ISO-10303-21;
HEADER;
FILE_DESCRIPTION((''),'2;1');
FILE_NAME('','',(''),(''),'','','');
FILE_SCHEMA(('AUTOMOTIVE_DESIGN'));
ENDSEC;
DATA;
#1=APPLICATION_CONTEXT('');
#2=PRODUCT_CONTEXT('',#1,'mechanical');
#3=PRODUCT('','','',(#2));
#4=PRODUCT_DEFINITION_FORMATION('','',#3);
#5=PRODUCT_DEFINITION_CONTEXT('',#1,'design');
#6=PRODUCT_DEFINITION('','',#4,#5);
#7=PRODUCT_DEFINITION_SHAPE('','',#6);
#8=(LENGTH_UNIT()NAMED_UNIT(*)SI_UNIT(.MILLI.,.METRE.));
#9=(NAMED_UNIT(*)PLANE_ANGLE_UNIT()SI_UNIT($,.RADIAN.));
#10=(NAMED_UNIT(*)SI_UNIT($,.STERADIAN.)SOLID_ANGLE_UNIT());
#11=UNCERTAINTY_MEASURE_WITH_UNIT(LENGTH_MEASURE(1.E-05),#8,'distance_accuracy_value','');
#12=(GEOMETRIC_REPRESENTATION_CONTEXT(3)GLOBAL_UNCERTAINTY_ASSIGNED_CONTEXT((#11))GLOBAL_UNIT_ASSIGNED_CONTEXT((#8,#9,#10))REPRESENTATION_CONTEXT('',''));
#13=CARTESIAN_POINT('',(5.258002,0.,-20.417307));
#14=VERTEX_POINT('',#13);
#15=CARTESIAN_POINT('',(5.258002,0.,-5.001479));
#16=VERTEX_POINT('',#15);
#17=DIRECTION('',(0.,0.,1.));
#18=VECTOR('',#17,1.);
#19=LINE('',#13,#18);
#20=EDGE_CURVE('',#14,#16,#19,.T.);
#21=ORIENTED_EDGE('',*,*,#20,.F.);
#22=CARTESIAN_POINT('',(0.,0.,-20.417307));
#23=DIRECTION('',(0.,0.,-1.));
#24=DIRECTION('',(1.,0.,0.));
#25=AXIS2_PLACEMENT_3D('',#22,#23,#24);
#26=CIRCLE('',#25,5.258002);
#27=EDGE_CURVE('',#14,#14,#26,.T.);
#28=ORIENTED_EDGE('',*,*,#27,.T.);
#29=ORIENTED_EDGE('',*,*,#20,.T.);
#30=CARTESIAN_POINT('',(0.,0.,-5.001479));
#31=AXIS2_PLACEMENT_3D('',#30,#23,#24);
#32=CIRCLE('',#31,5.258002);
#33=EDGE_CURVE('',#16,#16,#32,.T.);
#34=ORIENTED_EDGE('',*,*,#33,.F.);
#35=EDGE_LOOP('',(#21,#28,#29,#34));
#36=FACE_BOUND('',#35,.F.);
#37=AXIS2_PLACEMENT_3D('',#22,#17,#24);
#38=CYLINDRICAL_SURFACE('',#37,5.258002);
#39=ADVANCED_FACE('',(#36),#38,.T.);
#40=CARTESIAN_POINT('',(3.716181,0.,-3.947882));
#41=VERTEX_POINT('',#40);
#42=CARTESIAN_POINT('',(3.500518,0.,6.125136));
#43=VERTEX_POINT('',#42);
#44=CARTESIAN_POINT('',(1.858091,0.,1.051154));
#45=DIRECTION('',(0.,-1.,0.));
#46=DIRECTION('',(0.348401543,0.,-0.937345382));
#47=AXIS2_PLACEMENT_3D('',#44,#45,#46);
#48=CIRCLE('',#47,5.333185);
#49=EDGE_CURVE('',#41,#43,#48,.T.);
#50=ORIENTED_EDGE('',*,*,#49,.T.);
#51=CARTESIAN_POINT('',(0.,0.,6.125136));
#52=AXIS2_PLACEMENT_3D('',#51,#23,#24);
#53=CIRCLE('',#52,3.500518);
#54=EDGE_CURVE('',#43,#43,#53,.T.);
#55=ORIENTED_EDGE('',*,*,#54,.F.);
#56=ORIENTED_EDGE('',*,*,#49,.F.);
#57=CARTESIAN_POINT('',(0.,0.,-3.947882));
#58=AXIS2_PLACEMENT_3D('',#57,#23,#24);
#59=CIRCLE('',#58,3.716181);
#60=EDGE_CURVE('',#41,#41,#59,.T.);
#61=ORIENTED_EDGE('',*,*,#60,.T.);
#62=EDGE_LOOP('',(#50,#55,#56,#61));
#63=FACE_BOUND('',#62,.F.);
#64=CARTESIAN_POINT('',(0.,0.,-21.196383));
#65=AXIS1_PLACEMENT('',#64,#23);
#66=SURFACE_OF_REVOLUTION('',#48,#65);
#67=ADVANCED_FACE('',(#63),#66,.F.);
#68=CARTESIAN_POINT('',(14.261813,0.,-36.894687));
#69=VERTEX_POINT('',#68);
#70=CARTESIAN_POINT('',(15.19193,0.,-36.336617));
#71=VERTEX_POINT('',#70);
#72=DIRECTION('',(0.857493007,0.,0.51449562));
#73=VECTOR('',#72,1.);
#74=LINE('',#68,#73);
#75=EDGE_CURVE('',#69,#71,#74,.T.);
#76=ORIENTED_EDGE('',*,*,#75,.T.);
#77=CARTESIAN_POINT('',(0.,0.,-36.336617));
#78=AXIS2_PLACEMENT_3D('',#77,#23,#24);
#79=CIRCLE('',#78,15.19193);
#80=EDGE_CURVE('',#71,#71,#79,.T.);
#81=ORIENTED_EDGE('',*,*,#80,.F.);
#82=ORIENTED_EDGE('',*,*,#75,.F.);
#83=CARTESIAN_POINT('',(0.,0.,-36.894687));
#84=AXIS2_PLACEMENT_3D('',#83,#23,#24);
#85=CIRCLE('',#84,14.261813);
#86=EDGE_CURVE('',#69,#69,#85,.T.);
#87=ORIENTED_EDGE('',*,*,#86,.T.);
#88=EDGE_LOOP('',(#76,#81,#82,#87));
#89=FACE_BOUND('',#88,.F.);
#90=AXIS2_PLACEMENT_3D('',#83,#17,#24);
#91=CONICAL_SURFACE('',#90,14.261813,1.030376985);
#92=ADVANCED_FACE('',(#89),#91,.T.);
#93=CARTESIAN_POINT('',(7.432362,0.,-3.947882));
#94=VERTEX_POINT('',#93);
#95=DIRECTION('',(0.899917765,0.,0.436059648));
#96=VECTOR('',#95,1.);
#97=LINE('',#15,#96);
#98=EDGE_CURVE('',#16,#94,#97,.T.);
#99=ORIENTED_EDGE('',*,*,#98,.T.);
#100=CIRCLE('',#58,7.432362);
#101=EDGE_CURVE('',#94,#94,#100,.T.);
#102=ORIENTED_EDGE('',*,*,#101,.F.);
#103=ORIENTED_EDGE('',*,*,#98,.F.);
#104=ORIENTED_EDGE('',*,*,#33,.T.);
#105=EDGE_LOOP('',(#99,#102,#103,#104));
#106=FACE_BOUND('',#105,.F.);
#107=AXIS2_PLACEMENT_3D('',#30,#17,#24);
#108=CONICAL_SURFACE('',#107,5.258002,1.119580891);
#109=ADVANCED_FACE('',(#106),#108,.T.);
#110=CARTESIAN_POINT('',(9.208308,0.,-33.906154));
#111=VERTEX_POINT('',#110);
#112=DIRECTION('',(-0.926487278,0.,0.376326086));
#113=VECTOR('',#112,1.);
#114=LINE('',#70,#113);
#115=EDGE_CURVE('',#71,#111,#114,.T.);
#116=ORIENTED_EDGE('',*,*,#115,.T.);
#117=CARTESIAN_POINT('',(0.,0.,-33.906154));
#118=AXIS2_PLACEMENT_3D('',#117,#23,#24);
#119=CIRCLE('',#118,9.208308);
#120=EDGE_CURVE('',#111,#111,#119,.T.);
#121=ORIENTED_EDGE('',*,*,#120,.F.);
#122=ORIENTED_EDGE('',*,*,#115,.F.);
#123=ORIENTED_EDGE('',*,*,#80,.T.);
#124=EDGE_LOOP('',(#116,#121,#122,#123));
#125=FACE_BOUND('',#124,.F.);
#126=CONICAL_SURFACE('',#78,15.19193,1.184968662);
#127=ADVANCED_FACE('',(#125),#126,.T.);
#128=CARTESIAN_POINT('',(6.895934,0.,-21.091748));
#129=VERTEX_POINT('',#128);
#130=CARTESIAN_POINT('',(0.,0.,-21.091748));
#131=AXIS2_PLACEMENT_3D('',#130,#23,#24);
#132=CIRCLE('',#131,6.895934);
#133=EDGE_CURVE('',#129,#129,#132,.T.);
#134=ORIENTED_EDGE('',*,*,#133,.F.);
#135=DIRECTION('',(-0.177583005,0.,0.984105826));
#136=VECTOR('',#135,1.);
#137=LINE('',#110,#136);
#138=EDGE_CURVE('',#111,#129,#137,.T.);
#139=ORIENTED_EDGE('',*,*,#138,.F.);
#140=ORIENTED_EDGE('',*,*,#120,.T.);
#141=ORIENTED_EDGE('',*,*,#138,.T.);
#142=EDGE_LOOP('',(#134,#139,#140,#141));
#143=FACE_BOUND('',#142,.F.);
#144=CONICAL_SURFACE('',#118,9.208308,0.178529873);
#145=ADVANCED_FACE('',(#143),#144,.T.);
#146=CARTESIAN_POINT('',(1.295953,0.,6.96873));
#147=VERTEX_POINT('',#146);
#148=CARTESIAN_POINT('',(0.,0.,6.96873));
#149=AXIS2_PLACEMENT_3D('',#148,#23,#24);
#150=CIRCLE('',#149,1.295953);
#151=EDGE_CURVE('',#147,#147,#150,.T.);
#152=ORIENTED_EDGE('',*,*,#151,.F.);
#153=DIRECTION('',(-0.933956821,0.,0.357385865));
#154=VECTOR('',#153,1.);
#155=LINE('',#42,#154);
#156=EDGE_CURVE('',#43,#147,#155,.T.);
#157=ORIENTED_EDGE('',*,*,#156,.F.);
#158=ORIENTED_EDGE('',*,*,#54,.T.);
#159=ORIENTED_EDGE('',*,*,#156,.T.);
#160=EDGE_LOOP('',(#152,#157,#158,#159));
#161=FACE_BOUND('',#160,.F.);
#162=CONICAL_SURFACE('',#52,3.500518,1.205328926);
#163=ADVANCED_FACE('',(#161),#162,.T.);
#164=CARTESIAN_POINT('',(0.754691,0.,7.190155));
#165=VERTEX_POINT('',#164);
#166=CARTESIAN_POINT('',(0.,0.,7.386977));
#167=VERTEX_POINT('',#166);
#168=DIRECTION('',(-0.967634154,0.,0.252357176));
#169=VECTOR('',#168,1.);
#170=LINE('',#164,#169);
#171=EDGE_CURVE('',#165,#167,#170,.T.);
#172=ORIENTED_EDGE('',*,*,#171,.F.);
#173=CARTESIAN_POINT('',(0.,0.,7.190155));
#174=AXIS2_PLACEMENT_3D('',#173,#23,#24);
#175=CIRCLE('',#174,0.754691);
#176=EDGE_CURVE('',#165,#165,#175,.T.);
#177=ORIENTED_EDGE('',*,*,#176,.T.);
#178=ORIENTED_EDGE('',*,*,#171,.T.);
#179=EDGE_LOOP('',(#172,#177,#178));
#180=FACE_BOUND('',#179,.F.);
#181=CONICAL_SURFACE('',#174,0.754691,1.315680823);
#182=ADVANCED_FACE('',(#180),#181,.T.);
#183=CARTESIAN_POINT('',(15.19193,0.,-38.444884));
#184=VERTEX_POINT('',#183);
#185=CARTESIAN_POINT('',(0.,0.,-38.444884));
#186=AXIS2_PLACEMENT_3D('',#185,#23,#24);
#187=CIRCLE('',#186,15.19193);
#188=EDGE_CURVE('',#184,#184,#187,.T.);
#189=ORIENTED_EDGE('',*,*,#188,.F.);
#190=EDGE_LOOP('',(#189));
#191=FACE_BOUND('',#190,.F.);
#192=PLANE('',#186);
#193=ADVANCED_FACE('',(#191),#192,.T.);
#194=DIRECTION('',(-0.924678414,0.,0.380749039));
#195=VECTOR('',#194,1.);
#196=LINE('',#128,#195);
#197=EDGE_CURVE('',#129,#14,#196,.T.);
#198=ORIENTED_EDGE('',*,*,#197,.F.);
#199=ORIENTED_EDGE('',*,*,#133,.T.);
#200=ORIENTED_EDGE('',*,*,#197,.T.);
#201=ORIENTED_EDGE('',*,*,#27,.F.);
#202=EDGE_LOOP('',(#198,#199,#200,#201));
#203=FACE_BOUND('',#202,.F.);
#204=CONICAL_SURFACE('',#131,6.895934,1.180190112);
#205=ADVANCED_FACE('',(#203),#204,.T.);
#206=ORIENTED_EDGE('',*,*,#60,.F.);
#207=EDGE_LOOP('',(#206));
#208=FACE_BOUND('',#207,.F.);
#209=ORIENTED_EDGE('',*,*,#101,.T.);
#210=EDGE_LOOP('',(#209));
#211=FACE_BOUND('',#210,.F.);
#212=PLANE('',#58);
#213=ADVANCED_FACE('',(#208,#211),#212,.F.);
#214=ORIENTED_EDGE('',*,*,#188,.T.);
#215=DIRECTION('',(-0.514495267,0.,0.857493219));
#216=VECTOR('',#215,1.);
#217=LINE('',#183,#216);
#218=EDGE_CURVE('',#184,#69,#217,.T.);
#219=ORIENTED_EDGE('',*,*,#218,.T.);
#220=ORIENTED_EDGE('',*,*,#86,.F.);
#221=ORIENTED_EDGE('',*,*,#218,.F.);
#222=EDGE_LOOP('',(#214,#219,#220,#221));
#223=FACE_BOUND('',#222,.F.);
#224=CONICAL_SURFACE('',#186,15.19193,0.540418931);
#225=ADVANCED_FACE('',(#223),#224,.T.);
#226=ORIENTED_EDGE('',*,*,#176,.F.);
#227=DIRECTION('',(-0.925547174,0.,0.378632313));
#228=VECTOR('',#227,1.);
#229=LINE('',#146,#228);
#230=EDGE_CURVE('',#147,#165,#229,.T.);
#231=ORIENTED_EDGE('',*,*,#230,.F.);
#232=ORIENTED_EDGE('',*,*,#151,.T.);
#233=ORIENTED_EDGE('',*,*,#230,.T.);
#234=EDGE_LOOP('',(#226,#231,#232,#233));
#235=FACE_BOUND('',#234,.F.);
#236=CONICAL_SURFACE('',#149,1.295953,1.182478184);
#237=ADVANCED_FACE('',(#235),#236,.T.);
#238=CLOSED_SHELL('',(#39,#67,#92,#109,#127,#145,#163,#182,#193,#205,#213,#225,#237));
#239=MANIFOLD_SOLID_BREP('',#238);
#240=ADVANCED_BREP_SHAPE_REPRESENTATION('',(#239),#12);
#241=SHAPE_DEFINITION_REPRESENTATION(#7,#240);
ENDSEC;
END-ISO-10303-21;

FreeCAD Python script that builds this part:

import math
import FreeCAD as App
import Part
import Sketcher

doc = App.newDocument("Part")
body = doc.addObject("PartDesign::Body", "Body")

# Sketch on XZ plane
sketch1 = body.newObject("Sketcher::SketchObject", "Sketch")
sketch1.AttachmentSupport = (doc.getObject("XZ_Plane"), [""])
sketch1.MapMode = "FlatFace"
sketch1.addGeometry(Part.ArcOfCircle(Part.Circle(App.Vector(1.9, 1.1, 0), App.Vector(0, 0, 1), 5.3), math.radians(-70), math.radians(72)), False)
sketch1.addGeometry(Part.LineSegment(App.Vector(3.5, 6.1, 0), App.Vector(1.3, 7, 0)), False)
sketch1.addGeometry(Part.LineSegment(App.Vector(1.3, 7, 0), App.Vector(0.8, 7.2, 0)), False)
sketch1.addGeometry(Part.LineSegment(App.Vector(0.8, 7.2, 0), App.Vector(0, 7.4, 0)), False)
sketch1.addGeometry(Part.LineSegment(App.Vector(0, 7.4, 0), App.Vector(0, -38.4, 0)), False)
sketch1.addGeometry(Part.LineSegment(App.Vector(0, -38.4, 0), App.Vector(15.2, -38.4, 0)), False)
sketch1.addGeometry(Part.LineSegment(App.Vector(15.2, -38.4, 0), App.Vector(14.3, -36.9, 0)), False)
sketch1.addGeometry(Part.LineSegment(App.Vector(14.3, -36.9, 0), App.Vector(15.2, -36.3, 0)), False)
sketch1.addGeometry(Part.LineSegment(App.Vector(15.2, -36.3, 0), App.Vector(9.2, -33.9, 0)), False)
sketch1.addGeometry(Part.LineSegment(App.Vector(9.2, -33.9, 0), App.Vector(6.9, -21.1, 0)), False)
sketch1.addGeometry(Part.LineSegment(App.Vector(6.9, -21.1, 0), App.Vector(5.3, -20.4, 0)), False)
sketch1.addGeometry(Part.LineSegment(App.Vector(5.3, -20.4, 0), App.Vector(5.3, -5, 0)), False)
sketch1.addGeometry(Part.LineSegment(App.Vector(5.3, -5, 0), App.Vector(7.4, -3.9, 0)), False)
sketch1.addGeometry(Part.LineSegment(App.Vector(7.4, -3.9, 0), App.Vector(3.7, -3.9, 0)), False)
sketch1.addConstraint(Sketcher.Constraint("Coincident", 0, 2, 1, 1))
sketch1.addConstraint(Sketcher.Constraint("Coincident", 1, 2, 2, 1))
sketch1.addConstraint(Sketcher.Constraint("Coincident", 2, 2, 3, 1))
sketch1.addConstraint(Sketcher.Constraint("Coincident", 3, 2, 4, 1))
sketch1.addConstraint(Sketcher.Constraint("Coincident", 4, 2, 5, 1))
sketch1.addConstraint(Sketcher.Constraint("Coincident", 5, 2, 6, 1))
sketch1.addConstraint(Sketcher.Constraint("Coincident", 6, 2, 7, 1))
sketch1.addConstraint(Sketcher.Constraint("Coincident", 7, 2, 8, 1))
sketch1.addConstraint(Sketcher.Constraint("Coincident", 8, 2, 9, 1))
sketch1.addConstraint(Sketcher.Constraint("Coincident", 9, 2, 10, 1))
sketch1.addConstraint(Sketcher.Constraint("Coincident", 10, 2, 11, 1))
sketch1.addConstraint(Sketcher.Constraint("Coincident", 11, 2, 12, 1))
sketch1.addConstraint(Sketcher.Constraint("Coincident", 12, 2, 13, 1))
sketch1.addConstraint(Sketcher.Constraint("Coincident", 13, 2, 0, 1))
sketch1.addConstraint(Sketcher.Constraint("Vertical", 4))
sketch1.addConstraint(Sketcher.Constraint("Horizontal", 5))
sketch1.addConstraint(Sketcher.Constraint("Vertical", 11))
sketch1.addConstraint(Sketcher.Constraint("Horizontal", 13))
sketch1.addConstraint(Sketcher.Constraint("PointOnObject", 3, 2, -2))
sketch1.addConstraint(Sketcher.Constraint("Perpendicular", 6, 7))
sketch1.addConstraint(Sketcher.Constraint("Vertical", 5, 2, 7, 2))
sketch1.addConstraint(Sketcher.Constraint("Radius", 0, 5.333185))
sketch1.addConstraint(Sketcher.Constraint("DistanceY", 0, 3, 2, 2, 6.139001))
sketch1.addConstraint(Sketcher.Constraint("DistanceX", 5, 1, 5, 2, 15.19193))
sketch1.addConstraint(Sketcher.Constraint("DistanceX", 13, 2, 13, 1, 3.716181))
sketch1.addConstraint(Sketcher.Constraint("DistanceY", 4, 2, 4, 1, 45.831861))
sketch1.addConstraint(Sketcher.Constraint("DistanceY", 11, 1, 11, 2, 15.415828))
sketch1.addConstraint(Sketcher.Constraint("DistanceX", 2, 2, 0, 3, 1.1034))
sketch1.addConstraint(Sketcher.Constraint("Distance", 9, 13.02137))
sketch1.addConstraint(Sketcher.Constraint("DistanceX", -1, 1, 0, 3, 1.858091))
sketch1.addConstraint(Sketcher.Constraint("DistanceY", -1, 1, 1, 2, 6.96873))
sketch1.addConstraint(Sketcher.Constraint("DistanceY", 11, 2, -1, 1, 5.001479))
sketch1.addConstraint(Sketcher.Constraint("DistanceY", 12, 2, -1, 1, 3.947882))
sketch1.addConstraint(Sketcher.Constraint("DistanceX", -1, 1, 13, 2, 3.716181))
sketch1.addConstraint(Sketcher.Constraint("DistanceY", 0, 3, 0, 2, 5.073982))
sketch1.addConstraint(Sketcher.Constraint("DistanceX", 1, 2, 0, 3, 0.562138))
sketch1.addConstraint(Sketcher.Constraint("DistanceY", 0, 2, 3, 2, 1.261841))
sketch1.addConstraint(Sketcher.Constraint("DistanceX", 0, 3, 6, 2, 12.403722))
sketch1.addConstraint(Sketcher.Constraint("DistanceY", 6, 2, 0, 3, 37.945841))
sketch1.addConstraint(Sketcher.Constraint("DistanceX", 8, 2, 7, 2, 5.983622))
sketch1.addConstraint(Sketcher.Constraint("DistanceY", 5, 2, 8, 2, 4.53873))
sketch1.addConstraint(Sketcher.Constraint("DistanceY", 7, 2, 9, 2, 15.244869))
sketch1.addConstraint(Sketcher.Constraint("DistanceX", 10, 2, 9, 2, 1.637932))
revolution = body.newObject("PartDesign::Revolution", "Revolution")
revolution.Profile = sketch1
revolution.ReferenceAxis = (sketch1, ["V_Axis"])
revolution.Angle = 360

doc.recompute()
